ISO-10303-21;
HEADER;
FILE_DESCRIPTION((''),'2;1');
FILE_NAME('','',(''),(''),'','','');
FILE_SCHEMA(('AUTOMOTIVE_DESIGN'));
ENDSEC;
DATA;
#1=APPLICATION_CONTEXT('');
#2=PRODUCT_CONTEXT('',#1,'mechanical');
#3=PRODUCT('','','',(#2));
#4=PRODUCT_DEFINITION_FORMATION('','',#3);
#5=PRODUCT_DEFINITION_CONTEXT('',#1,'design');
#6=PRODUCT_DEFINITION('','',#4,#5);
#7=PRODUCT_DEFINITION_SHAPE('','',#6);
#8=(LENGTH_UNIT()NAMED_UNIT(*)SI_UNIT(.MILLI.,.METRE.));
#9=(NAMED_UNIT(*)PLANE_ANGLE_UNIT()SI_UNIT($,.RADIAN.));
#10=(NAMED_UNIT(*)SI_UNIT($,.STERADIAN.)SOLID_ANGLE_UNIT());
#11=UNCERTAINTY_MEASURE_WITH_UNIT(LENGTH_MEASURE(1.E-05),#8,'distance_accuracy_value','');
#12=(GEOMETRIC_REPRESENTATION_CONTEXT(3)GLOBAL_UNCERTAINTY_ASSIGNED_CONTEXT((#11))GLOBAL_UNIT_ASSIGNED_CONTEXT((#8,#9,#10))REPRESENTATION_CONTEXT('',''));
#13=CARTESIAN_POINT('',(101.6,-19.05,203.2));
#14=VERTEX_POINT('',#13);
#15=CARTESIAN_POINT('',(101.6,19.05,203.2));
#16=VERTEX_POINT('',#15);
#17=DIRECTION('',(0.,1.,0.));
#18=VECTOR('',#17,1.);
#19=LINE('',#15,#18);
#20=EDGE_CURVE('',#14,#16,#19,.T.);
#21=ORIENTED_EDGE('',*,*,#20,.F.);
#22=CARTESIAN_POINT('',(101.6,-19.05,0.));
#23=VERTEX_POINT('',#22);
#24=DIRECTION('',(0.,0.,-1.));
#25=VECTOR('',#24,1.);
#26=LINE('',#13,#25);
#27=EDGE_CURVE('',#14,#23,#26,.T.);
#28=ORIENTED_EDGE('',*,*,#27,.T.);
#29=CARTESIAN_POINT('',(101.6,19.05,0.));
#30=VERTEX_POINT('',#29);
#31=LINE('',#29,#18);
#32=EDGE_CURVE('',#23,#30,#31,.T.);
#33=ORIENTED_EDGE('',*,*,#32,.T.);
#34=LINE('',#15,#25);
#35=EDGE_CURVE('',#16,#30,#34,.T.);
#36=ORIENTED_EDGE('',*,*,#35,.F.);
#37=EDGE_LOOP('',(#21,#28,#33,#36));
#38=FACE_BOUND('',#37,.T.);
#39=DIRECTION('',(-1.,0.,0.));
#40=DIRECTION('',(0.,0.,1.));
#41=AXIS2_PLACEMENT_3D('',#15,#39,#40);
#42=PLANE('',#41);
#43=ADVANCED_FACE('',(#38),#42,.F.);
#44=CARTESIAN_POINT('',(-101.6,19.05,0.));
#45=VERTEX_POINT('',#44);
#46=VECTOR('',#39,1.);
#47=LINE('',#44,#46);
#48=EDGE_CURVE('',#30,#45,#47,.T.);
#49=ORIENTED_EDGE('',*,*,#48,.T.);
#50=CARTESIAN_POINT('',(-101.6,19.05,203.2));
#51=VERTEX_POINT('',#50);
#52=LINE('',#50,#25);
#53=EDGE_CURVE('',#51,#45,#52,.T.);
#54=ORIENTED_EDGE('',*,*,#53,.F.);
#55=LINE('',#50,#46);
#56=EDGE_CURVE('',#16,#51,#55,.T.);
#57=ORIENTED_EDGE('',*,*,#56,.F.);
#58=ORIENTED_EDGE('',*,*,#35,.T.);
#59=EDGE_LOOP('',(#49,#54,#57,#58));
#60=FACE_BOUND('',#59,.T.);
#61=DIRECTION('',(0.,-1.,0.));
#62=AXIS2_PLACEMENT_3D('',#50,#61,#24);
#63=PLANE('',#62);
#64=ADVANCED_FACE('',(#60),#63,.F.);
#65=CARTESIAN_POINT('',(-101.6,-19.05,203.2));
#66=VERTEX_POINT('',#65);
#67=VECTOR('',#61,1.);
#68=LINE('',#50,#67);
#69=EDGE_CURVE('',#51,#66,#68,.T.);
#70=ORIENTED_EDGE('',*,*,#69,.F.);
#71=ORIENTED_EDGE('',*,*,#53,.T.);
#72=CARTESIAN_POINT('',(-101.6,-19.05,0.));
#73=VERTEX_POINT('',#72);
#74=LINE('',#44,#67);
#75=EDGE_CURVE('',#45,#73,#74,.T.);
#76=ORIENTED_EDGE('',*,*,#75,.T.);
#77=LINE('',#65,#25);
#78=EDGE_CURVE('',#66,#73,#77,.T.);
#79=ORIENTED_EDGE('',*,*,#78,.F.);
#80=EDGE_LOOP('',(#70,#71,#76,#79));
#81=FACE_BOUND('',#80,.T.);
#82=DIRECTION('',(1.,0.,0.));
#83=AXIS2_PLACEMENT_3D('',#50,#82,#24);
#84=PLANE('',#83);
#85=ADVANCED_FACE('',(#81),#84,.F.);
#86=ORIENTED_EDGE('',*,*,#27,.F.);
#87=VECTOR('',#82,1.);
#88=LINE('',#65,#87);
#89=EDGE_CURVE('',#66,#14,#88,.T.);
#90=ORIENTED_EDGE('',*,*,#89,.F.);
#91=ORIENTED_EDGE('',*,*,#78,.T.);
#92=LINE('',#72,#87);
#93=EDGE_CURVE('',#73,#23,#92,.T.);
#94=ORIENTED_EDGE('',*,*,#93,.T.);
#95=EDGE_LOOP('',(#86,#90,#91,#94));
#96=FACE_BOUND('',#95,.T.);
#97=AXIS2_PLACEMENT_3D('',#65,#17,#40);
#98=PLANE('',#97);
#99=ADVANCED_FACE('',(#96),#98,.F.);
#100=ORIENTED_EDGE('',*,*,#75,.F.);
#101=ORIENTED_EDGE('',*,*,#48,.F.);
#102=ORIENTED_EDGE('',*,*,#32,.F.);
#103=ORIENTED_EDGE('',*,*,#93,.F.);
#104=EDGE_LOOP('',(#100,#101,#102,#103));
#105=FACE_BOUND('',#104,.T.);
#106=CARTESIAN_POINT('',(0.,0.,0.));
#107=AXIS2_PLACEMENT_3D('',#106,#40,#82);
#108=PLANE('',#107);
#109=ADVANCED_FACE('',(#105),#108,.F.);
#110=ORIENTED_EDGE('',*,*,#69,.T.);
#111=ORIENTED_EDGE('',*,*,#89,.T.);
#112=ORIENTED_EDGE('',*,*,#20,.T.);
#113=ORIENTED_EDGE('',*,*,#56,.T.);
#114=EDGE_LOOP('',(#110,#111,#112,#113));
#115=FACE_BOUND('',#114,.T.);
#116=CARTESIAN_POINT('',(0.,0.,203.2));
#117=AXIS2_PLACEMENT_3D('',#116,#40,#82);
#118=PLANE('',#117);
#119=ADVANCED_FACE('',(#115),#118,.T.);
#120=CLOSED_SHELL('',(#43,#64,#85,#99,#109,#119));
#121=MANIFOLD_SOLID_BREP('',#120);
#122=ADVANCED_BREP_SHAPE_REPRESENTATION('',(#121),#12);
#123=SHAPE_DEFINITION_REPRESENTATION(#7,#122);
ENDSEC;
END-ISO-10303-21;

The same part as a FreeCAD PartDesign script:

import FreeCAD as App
import Part
import Sketcher
from FreeCAD import Vector
Q = App.Units.Quantity

doc = App.newDocument("Part")
body = doc.addObject("PartDesign::Body", "Body")

# Sketch on XY plane
sketch1 = doc.addObject("Sketcher::SketchObject", "Sketch")
body.addObject(sketch1)
sketch1.AttachmentSupport = (doc.XY_Plane, [""])
sketch1.MapMode = "FlatFace"
sketch1.addGeometry([
    Part.LineSegment(Vector(-102, 19, 0), Vector(-102, -19, 0)),
    Part.LineSegment(Vector(-102, -19, 0), Vector(102, -19, 0)),
    Part.LineSegment(Vector(102, -19, 0), Vector(102, 19, 0)),
    Part.LineSegment(Vector(102, 19, 0), Vector(-102, 19, 0)),
], False)
sketch1.addConstraint([
    Sketcher.Constraint("Coincident", 0, 2, 1, 1),
    Sketcher.Constraint("Coincident", 1, 2, 2, 1),
    Sketcher.Constraint("Coincident", 2, 2, 3, 1),
    Sketcher.Constraint("Coincident", 3, 2, 0, 1),
    Sketcher.Constraint("Vertical", 0),
    Sketcher.Constraint("Horizontal", 1),
    Sketcher.Constraint("Vertical", 2),
    Sketcher.Constraint("Horizontal", 3),
    Sketcher.Constraint("Symmetric", 0, 2, 2, 2, -1, 1),
    Sketcher.Constraint("DistanceX", 1, 1, 1, 2, Q("8 in")),
    Sketcher.Constraint("DistanceY", 0, 2, 0, 1, Q("1.5 in")),
])
pad1 = doc.addObject("PartDesign::Pad", "Pad")
body.addObject(pad1)
pad1.Profile = sketch1
pad1.Length = Q("8 in")

doc.recompute()
